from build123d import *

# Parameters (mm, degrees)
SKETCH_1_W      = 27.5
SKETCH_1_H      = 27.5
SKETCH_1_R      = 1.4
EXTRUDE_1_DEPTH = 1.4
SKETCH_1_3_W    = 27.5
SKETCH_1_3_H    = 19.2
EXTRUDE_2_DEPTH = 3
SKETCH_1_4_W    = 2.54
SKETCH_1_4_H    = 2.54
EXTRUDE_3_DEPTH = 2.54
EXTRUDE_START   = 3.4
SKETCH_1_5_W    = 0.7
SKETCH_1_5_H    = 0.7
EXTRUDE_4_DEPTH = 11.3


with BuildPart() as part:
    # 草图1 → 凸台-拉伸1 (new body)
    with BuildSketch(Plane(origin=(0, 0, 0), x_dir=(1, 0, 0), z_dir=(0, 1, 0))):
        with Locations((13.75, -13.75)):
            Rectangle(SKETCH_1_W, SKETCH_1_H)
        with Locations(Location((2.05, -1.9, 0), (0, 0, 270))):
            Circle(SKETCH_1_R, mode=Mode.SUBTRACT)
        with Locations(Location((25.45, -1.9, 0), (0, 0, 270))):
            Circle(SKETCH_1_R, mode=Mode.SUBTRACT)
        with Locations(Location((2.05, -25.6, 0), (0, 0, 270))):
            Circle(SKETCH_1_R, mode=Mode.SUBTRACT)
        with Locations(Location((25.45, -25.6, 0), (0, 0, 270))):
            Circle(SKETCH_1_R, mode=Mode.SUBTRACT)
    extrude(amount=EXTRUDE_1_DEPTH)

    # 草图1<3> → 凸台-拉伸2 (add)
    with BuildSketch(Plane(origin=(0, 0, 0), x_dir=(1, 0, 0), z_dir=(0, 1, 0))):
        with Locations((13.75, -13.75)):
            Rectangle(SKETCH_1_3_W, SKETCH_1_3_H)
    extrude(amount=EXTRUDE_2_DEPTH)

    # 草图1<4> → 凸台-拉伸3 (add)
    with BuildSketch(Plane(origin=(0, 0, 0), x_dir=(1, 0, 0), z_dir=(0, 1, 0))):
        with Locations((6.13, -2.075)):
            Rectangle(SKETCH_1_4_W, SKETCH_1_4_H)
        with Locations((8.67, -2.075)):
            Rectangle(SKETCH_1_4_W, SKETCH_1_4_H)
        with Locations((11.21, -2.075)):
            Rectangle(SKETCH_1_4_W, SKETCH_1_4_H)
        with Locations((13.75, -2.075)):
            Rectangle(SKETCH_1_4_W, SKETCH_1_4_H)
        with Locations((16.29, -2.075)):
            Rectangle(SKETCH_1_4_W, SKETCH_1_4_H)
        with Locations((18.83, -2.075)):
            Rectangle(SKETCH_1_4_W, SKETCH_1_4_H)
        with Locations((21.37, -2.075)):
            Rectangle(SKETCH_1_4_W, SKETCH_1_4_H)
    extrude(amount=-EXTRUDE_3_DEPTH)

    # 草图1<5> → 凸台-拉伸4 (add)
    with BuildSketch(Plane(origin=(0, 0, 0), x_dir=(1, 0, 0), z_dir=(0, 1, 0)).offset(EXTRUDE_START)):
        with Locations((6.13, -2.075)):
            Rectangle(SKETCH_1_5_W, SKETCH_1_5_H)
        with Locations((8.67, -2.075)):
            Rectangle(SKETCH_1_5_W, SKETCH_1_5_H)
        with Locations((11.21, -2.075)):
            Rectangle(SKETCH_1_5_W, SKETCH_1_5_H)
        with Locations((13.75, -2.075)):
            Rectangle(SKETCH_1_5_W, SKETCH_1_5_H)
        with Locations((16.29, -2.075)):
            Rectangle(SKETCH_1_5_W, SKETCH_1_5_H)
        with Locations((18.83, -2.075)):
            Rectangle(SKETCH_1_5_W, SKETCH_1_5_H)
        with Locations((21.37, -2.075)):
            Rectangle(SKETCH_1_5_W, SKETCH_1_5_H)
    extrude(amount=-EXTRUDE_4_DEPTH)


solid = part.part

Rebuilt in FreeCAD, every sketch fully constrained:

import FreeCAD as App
import Part
import Sketcher

V = App.Vector
Q = App.Units.Quantity


def add_polygon(sketch, points):
    """Adds a closed chain of lines whose ends are joined by coincident constraints."""
    first, n = sketch.GeometryCount, len(points)
    for a, b in zip(points, points[1:] + points[:1]):
        sketch.addGeometry(Part.LineSegment(App.Vector(*a, 0), App.Vector(*b, 0)), False)
    for i in range(n):
        sketch.addConstraint(Sketcher.Constraint("Coincident", first + i, 2, first + (i + 1) % n, 1))

doc = App.newDocument("Part")
body = doc.addObject("PartDesign::Body", "Body")

# Sketch on XZ plane
sketch1 = body.newObject("Sketcher::SketchObject", "Sketch")
sketch1.AttachmentSupport = (doc.getObject("XZ_Plane"), [""])
sketch1.MapMode = "FlatFace"
add_polygon(sketch1, [(0, 0), (0, 27.5), (27.5, 27.5), (27.5, 0)])  # lines 0-3
sketch1.addGeometry(Part.Circle(V(2, 25.6, 0), V(0, 0, 1), 1.4), False)  # 4
sketch1.addGeometry(Part.Circle(V(25.4, 25.6, 0), V(0, 0, 1), 1.4), False)  # 5
sketch1.addGeometry(Part.Circle(V(2, 1.9, 0), V(0, 0, 1), 1.4), False)  # 6
sketch1.addGeometry(Part.Circle(V(25.4, 1.9, 0), V(0, 0, 1), 1.4), False)  # 7
sketch1.addConstraint([
    Sketcher.Constraint("Vertical", 0),
    Sketcher.Constraint("Horizontal", 1),
    Sketcher.Constraint("Vertical", 2),
    Sketcher.Constraint("Horizontal", 3),
    Sketcher.Constraint("Coincident", 3, 2, -1, 1),
    Sketcher.Constraint("Equal", 4, 5),
    Sketcher.Constraint("Equal", 5, 6),
    Sketcher.Constraint("Equal", 6, 7),
    Sketcher.Constraint("Horizontal", 4, 3, 5, 3),
    Sketcher.Constraint("Horizontal", 6, 3, 7, 3),
    Sketcher.Constraint("Vertical", 4, 3, 6, 3),
    Sketcher.Constraint("Vertical", 5, 3, 7, 3),
    Sketcher.Constraint("Equal", 3, 0),
    Sketcher.Constraint("Diameter", 4, Q("2.8 mm")),
    Sketcher.Constraint("DistanceX", 1, 1, 1, 2, Q("27.5 mm")),
    Sketcher.Constraint("DistanceY", -1, 1, 4, 3, Q("25.6 mm")),
    Sketcher.Constraint("DistanceY", -1, 1, 6, 3, Q("1.9 mm")),
    Sketcher.Constraint("DistanceX", 4, 3, 5, 3, Q("23.4 mm")),
    Sketcher.Constraint("DistanceX", -1, 1, 4, 3, Q("2.05 mm")),
])
pad1 = body.newObject("PartDesign::Pad", "Pad")
pad1.Profile = sketch1
pad1.Length = 1.4
pad1.Reversed = True

# Sketch on XZ plane
sketch2 = body.newObject("Sketcher::SketchObject", "Sketch001")
sketch2.AttachmentSupport = (doc.getObject("XZ_Plane"), [""])
sketch2.MapMode = "FlatFace"
add_polygon(sketch2, [(0, 4), (0, 23), (28, 23), (28, 4)])  # lines 0-3
sketch2.addConstraint([
    Sketcher.Constraint("Vertical", 0),
    Sketcher.Constraint("Horizontal", 1),
    Sketcher.Constraint("Vertical", 2),
    Sketcher.Constraint("Horizontal", 3),
    Sketcher.Constraint("PointOnObject", 0, 2, -2),
    Sketcher.Constraint("DistanceX", 1, 1, 1, 2, Q("27.5 mm")),
    Sketcher.Constraint("DistanceY", 0, 1, 0, 2, Q("19.2 mm")),
    Sketcher.Constraint("DistanceY", -1, 1, 0, 2, Q("23.35 mm")),
])
pad2 = body.newObject("PartDesign::Pad", "Pad001")
pad2.Profile = sketch2
pad2.Length = 3
pad2.Reversed = True

# Sketch on XZ plane
sketch3 = body.newObject("Sketcher::SketchObject", "Sketch002")
sketch3.AttachmentSupport = (doc.getObject("XZ_Plane"), [""])
sketch3.MapMode = "FlatFace"
add_polygon(sketch3, [(4.9, 0.8), (4.9, 3.3), (22.6, 3.3), (22.6, 0.8)])  # lines 0-3
sketch3.addConstraint([
    Sketcher.Constraint("Vertical", 0),
    Sketcher.Constraint("Horizontal", 1),
    Sketcher.Constraint("Vertical", 2),
    Sketcher.Constraint("Horizontal", 3),
    Sketcher.Constraint("DistanceX", 1, 1, 1, 2, Q("17.78 mm")),
    Sketcher.Constraint("DistanceY", 0, 1, 0, 2, Q("2.54 mm")),
    Sketcher.Constraint("DistanceX", -1, 1, 0, 2, Q("4.86 mm")),
    Sketcher.Constraint("DistanceY", -1, 1, 0, 2, Q("3.345 mm")),
])
pad3 = body.newObject("PartDesign::Pad", "Pad002")
pad3.Profile = sketch3
pad3.Length = 2.54

# Sketch on XZ plane
sketch4 = body.newObject("Sketcher::SketchObject", "Sketch003")
sketch4.AttachmentSupport = (doc.getObject("XZ_Plane"), [""])
sketch4.MapMode = "FlatFace"
sketch4.AttachmentOffset = App.Placement(V(0, 0, -3.4), App.Rotation())
add_polygon(sketch4, [(5.8, 1.7), (5.8, 2.4), (6.5, 2.4), (6.5, 1.7)])  # lines 0-3
add_polygon(sketch4, [(8.3, 1.7), (8.3, 2.4), (9, 2.4), (9, 1.7)])  # lines 4-7
add_polygon(sketch4, [(10.9, 1.7), (10.9, 2.4), (11.6, 2.4), (11.6, 1.7)])  # lines 8-11
add_polygon(sketch4, [(13.4, 1.7), (13.4, 2.4), (14.1, 2.4), (14.1, 1.7)])  # lines 12-15
add_polygon(sketch4, [(15.9, 1.7), (15.9, 2.4), (16.6, 2.4), (16.6, 1.7)])  # lines 16-19
add_polygon(sketch4, [(18.5, 1.7), (18.5, 2.4), (19.2, 2.4), (19.2, 1.7)])  # lines 20-23
add_polygon(sketch4, [(21, 1.7), (21, 2.4), (21.7, 2.4), (21.7, 1.7)])  # lines 24-27
sketch4.addConstraint([
    Sketcher.Constraint("Vertical", 0),
    Sketcher.Constraint("Horizontal", 1),
    Sketcher.Constraint("Vertical", 2),
    Sketcher.Constraint("Horizontal", 3),
    Sketcher.Constraint("Vertical", 4),
    Sketcher.Constraint("Horizontal", 5),
    Sketcher.Constraint("Vertical", 6),
    Sketcher.Constraint("Horizontal", 7),
    Sketcher.Constraint("Vertical", 8),
    Sketcher.Constraint("Horizontal", 9),
    Sketcher.Constraint("Vertical", 10),
    Sketcher.Constraint("Horizontal", 11),
    Sketcher.Constraint("Vertical", 12),
    Sketcher.Constraint("Horizontal", 13),
    Sketcher.Constraint("Vertical", 14),
    Sketcher.Constraint("Horizontal", 15),
    Sketcher.Constraint("Vertical", 16),
    Sketcher.Constraint("Horizontal", 17),
    Sketcher.Constraint("Vertical", 18),
    Sketcher.Constraint("Horizontal", 19),
    Sketcher.Constraint("Vertical", 20),
    Sketcher.Constraint("Horizontal", 21),
    Sketcher.Constraint("Vertical", 22),
    Sketcher.Constraint("Horizontal", 23),
    Sketcher.Constraint("Vertical", 24),
    Sketcher.Constraint("Horizontal", 25),
    Sketcher.Constraint("Vertical", 26),
    Sketcher.Constraint("Horizontal", 27),
    Sketcher.Constraint("Horizontal", 1, 2, 4, 2),
    Sketcher.Constraint("Horizontal", 3, 2, 6, 2),
    Sketcher.Constraint("Horizontal", 5, 2, 8, 2),
    Sketcher.Constraint("Horizontal", 7, 2, 10, 2),
    Sketcher.Constraint("Horizontal", 9, 2, 12, 2),
    Sketcher.Constraint("Horizontal", 11, 2, 14, 2),
    Sketcher.Constraint("Horizontal", 13, 2, 16, 2),
    Sketcher.Constraint("Horizontal", 15, 2, 18, 2),
    Sketcher.Constraint("Horizontal", 17, 2, 20, 2),
    Sketcher.Constraint("Horizontal", 19, 2, 22, 2),
    Sketcher.Constraint("Horizontal", 21, 2, 24, 2),
    Sketcher.Constraint("Horizontal", 23, 2, 26, 2),
    Sketcher.Constraint("Equal", 3, 5),
    Sketcher.Constraint("Equal", 7, 9),
    Sketcher.Constraint("Equal", 11, 13),
    Sketcher.Constraint("Equal", 15, 17),
    Sketcher.Constraint("Equal", 19, 21),
    Sketcher.Constraint("Equal", 23, 25),
    Sketcher.Constraint("Equal", 27, 0),
    Sketcher.Constraint("DistanceX", 1, 1, 1, 2, Q("0.7 mm")),
    Sketcher.Constraint("DistanceX", -1, 1, 12, 2, Q("13.4 mm")),
    Sketcher.Constraint("DistanceX", -1, 1, 0, 2, Q("5.78 mm")),
    Sketcher.Constraint("DistanceX", -1, 1, 4, 2, Q("8.32 mm")),
    Sketcher.Constraint("DistanceX", -1, 1, 8, 2, Q("10.86 mm")),
    Sketcher.Constraint("DistanceX", -1, 1, 16, 2, Q("15.94 mm")),
    Sketcher.Constraint("DistanceX", -1, 1, 20, 2, Q("18.48 mm")),
    Sketcher.Constraint("DistanceX", -1, 1, 24, 2, Q("21.02 mm")),
    Sketcher.Constraint("DistanceY", -1, 1, 0, 2, Q("2.425 mm")),
])
pad4 = body.newObject("PartDesign::Pad", "Pad003")
pad4.Profile = sketch4
pad4.Length = 11.3

doc.recompute()
